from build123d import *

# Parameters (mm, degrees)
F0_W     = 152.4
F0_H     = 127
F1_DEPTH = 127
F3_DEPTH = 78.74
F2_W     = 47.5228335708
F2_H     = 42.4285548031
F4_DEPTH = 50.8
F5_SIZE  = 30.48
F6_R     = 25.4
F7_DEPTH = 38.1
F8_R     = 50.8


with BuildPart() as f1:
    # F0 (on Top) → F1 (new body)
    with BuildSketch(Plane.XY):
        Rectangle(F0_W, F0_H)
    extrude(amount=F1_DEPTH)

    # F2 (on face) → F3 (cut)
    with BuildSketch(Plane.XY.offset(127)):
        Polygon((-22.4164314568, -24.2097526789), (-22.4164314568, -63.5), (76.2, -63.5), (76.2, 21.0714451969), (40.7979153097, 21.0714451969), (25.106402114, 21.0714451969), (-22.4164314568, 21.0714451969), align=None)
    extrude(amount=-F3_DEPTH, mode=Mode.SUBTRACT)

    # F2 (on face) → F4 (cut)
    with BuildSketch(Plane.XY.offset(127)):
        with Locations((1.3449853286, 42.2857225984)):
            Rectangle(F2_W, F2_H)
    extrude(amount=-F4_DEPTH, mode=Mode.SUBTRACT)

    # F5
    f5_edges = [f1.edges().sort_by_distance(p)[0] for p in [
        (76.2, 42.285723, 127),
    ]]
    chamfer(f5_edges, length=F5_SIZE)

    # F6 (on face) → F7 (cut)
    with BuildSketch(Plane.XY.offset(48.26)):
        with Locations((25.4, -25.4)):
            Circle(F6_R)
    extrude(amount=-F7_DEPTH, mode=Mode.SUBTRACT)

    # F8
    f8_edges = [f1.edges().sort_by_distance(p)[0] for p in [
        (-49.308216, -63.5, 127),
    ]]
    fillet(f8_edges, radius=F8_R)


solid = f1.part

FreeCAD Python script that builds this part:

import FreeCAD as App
import Part
import Sketcher
from FreeCAD import Vector
Q = App.Units.Quantity


def edges_at(feature, points):
    """Names of the edges that pass closest to the given points."""
    edges = feature.Shape.Edges
    near = lambda p: min(range(len(edges)), key=lambda i: edges[i].distToShape(Part.Vertex(*p))[0])
    return sorted({f"Edge{near(p) + 1}" for p in points})

doc = App.newDocument("Part")
body = doc.addObject("PartDesign::Body", "Body")

sketch1 = body.newObject("Sketcher::SketchObject", "Sketch")
sketch1.AttachmentSupport = (doc.getObject("XY_Plane"), [""])
sketch1.MapMode = "FlatFace"
sketch1.addGeometry(Part.LineSegment(Vector(-76, 64, 0), Vector(-76, -64, 0)), False)
sketch1.addGeometry(Part.LineSegment(Vector(-76, -64, 0), Vector(76, -64, 0)), False)
sketch1.addGeometry(Part.LineSegment(Vector(76, -64, 0), Vector(76, 64, 0)), False)
sketch1.addGeometry(Part.LineSegment(Vector(76, 64, 0), Vector(-76, 64, 0)), False)
sketch1.addConstraint(Sketcher.Constraint("Coincident", 0, 2, 1, 1))
sketch1.addConstraint(Sketcher.Constraint("Coincident", 1, 2, 2, 1))
sketch1.addConstraint(Sketcher.Constraint("Coincident", 2, 2, 3, 1))
sketch1.addConstraint(Sketcher.Constraint("Coincident", 3, 2, 0, 1))
sketch1.addConstraint(Sketcher.Constraint("Vertical", 0))
sketch1.addConstraint(Sketcher.Constraint("Horizontal", 1))
sketch1.addConstraint(Sketcher.Constraint("Vertical", 2))
sketch1.addConstraint(Sketcher.Constraint("Horizontal", 3))
sketch1.addConstraint(Sketcher.Constraint("Symmetric", 0, 2, 2, 2, -1, 1))
sketch1.addConstraint(Sketcher.Constraint("DistanceX", 1, 1, 1, 2, Q("6 in")))
sketch1.addConstraint(Sketcher.Constraint("DistanceY", 0, 2, 0, 1, Q("5 in")))
pad1 = body.newObject("PartDesign::Pad", "Pad")
pad1.Profile = sketch1
pad1.Length = Q("5 in")

sketch2 = body.newObject("Sketcher::SketchObject", "Sketch001")
sketch2.AttachmentSupport = (doc.getObject("XY_Plane"), [""])
sketch2.MapMode = "FlatFace"
sketch2.AttachmentOffset = App.Placement(Vector(0, 0, 5 * 25.4), App.Rotation())
sketch2.addGeometry(Part.LineSegment(Vector(-22, -64, 0), Vector(76, -64, 0)), False)
sketch2.addGeometry(Part.LineSegment(Vector(76, -64, 0), Vector(76, 21, 0)), False)
sketch2.addGeometry(Part.LineSegment(Vector(76, 21, 0), Vector(-22, 21, 0)), False)
sketch2.addGeometry(Part.LineSegment(Vector(-22, 21, 0), Vector(-22, -64, 0)), False)
sketch2.addConstraint(Sketcher.Constraint("Coincident", 0, 2, 1, 1))
sketch2.addConstraint(Sketcher.Constraint("Coincident", 1, 2, 2, 1))
sketch2.addConstraint(Sketcher.Constraint("Coincident", 2, 2, 3, 1))
sketch2.addConstraint(Sketcher.Constraint("Coincident", 3, 2, 0, 1))
sketch2.addConstraint(Sketcher.Constraint("Horizontal", 0))
sketch2.addConstraint(Sketcher.Constraint("Vertical", 1))
sketch2.addConstraint(Sketcher.Constraint("Horizontal", 2))
sketch2.addConstraint(Sketcher.Constraint("Vertical", 3))
sketch2.addConstraint(Sketcher.Constraint("DistanceX", -1, 1, 0, 2, Q("3 in")))
sketch2.addConstraint(Sketcher.Constraint("DistanceY", 0, 2, -1, 1, Q("2.5 in")))
sketch2.addConstraint(Sketcher.Constraint("DistanceX", 0, 1, 0, 2, 98.616431))
sketch2.addConstraint(Sketcher.Constraint("DistanceY", 1, 1, 1, 2, 84.571445))
pocket1 = body.newObject("PartDesign::Pocket", "Pocket")
pocket1.Profile = sketch2
pocket1.Length = Q("3.1 in")

sketch3 = body.newObject("Sketcher::SketchObject", "Sketch002")
sketch3.AttachmentSupport = (doc.getObject("XY_Plane"), [""])
sketch3.MapMode = "FlatFace"
sketch3.AttachmentOffset = App.Placement(Vector(0, 0, 5 * 25.4), App.Rotation())
sketch3.addGeometry(Part.LineSegment(Vector(-22, 64, 0), Vector(-22, 21, 0)), False)
sketch3.addGeometry(Part.LineSegment(Vector(-22, 21, 0), Vector(25, 21, 0)), False)
sketch3.addGeometry(Part.LineSegment(Vector(25, 21, 0), Vector(25, 64, 0)), False)
sketch3.addGeometry(Part.LineSegment(Vector(25, 64, 0), Vector(-22, 64, 0)), False)
sketch3.addConstraint(Sketcher.Constraint("Coincident", 0, 2, 1, 1))
sketch3.addConstraint(Sketcher.Constraint("Coincident", 1, 2, 2, 1))
sketch3.addConstraint(Sketcher.Constraint("Coincident", 2, 2, 3, 1))
sketch3.addConstraint(Sketcher.Constraint("Coincident", 3, 2, 0, 1))
sketch3.addConstraint(Sketcher.Constraint("Vertical", 0))
sketch3.addConstraint(Sketcher.Constraint("Horizontal", 1))
sketch3.addConstraint(Sketcher.Constraint("Vertical", 2))
sketch3.addConstraint(Sketcher.Constraint("Horizontal", 3))
sketch3.addConstraint(Sketcher.Constraint("DistanceY", -1, 1, 2, 2, Q("2.5 in")))
sketch3.addConstraint(Sketcher.Constraint("DistanceX", 1, 1, 1, 2, 47.522834))
sketch3.addConstraint(Sketcher.Constraint("DistanceY", 0, 2, 0, 1, 42.428555))
sketch3.addConstraint(Sketcher.Constraint("DistanceX", 0, 2, -1, 1, 22.416431))
pocket2 = body.newObject("PartDesign::Pocket", "Pocket001")
pocket2.Profile = sketch3
pocket2.Length = Q("2 in")
doc.recompute()

chamfer = body.newObject("PartDesign::Chamfer", "Chamfer")
chamfer.Base = (pocket2, edges_at(pocket2, [(76.2, 42.286, 127)]))
chamfer.Size = Q("1.2 in")

sketch4 = body.newObject("Sketcher::SketchObject", "Sketch003")
sketch4.AttachmentSupport = (doc.getObject("XY_Plane"), [""])
sketch4.MapMode = "FlatFace"
sketch4.AttachmentOffset = App.Placement(Vector(0, 0, 1.9 * 25.4), App.Rotation())
sketch4.addGeometry(Part.Circle(Vector(25, -25, 0), Vector(0, 0, 1), 25), False)
sketch4.addConstraint(Sketcher.Constraint("Diameter", 0, Q("2 in")))
sketch4.addConstraint(Sketcher.Constraint("DistanceX", -1, 1, 0, 3, Q("1 in")))
sketch4.addConstraint(Sketcher.Constraint("DistanceY", 0, 3, -1, 1, Q("1 in")))
pocket3 = body.newObject("PartDesign::Pocket", "Pocket002")
pocket3.Profile = sketch4
pocket3.Length = Q("1.5 in")
doc.recompute()

fillet = body.newObject("PartDesign::Fillet", "Fillet")
fillet.Base = (pocket3, edges_at(pocket3, [(-49.308, -63.5, 127)]))
fillet.Radius = Q("2 in")

doc.recompute()
